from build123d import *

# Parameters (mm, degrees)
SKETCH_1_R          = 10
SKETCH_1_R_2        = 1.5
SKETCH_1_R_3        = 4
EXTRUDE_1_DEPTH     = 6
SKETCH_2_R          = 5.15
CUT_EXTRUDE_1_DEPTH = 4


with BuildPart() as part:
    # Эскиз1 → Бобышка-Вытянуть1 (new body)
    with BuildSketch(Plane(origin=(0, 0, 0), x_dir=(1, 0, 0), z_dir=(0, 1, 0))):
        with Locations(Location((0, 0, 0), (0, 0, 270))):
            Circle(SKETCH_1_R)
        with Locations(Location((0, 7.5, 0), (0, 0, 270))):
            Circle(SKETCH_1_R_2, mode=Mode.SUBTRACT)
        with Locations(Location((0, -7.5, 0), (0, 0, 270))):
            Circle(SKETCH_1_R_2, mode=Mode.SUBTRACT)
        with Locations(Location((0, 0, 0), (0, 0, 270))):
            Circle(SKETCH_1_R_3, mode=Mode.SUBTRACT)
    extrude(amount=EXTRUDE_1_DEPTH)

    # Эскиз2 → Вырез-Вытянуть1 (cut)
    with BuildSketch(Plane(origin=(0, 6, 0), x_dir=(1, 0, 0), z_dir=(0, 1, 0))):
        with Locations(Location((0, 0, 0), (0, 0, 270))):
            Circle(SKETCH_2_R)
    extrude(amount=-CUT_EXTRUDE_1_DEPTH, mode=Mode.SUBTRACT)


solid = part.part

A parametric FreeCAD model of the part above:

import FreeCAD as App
import Part
import Sketcher

V = App.Vector
Q = App.Units.Quantity

doc = App.newDocument("Part")
params = doc.addObject("Spreadsheet::Sheet", "Params")
for row, (alias, value) in enumerate([
    ("sketch1_diameter", "20 mm"),
    ("sketch1_diameter2", "3 mm"),
    ("sketch1_diameter3", "8 mm"),
    ("pad1_length", "6 mm"),
    ("sketch2_diameter", "10.3 mm"),
    ("pocket1_length", "4 mm"),
], start=1):
    params.set(f"A{row}", alias)
    params.set(f"B{row}", "=" + value)
    params.setAlias(f"B{row}", alias)

body = doc.addObject("PartDesign::Body", "Body")

sketch1 = body.newObject("Sketcher::SketchObject", "Sketch")
sketch1.AttachmentSupport = (doc.getObject("XZ_Plane"), [""])
sketch1.MapMode = "FlatFace"
sketch1.addGeometry(Part.Circle(V(0, 0, 0), V(0, 0, 1), 10), False)
sketch1.addGeometry(Part.Circle(V(0, -7.5, 0), V(0, 0, 1), 1.5), False)
sketch1.addGeometry(Part.Circle(V(0, 0, 0), V(0, 0, 1), 4), False)
sketch1.addGeometry(Part.Circle(V(0, 7.5, 0), V(0, 0, 1), 1.5), False)
sketch1.addConstraint(Sketcher.Constraint("Coincident", 0, 3, -1, 1))
sketch1.addConstraint(Sketcher.Constraint("Coincident", 2, 3, -1, 1))
sketch1.addConstraint(Sketcher.Constraint("Equal", 1, 3))
sketch1.addConstraint(Sketcher.Constraint("Symmetric", 1, 3, 3, 3, -1, 1))
sketch1.addConstraint(Sketcher.Constraint("PointOnObject", 1, 3, -2))
sketch1.addConstraint(Sketcher.Constraint("Diameter", 0, Q("20 mm")))
sketch1.addConstraint(Sketcher.Constraint("Diameter", 1, Q("3 mm")))
sketch1.addConstraint(Sketcher.Constraint("Diameter", 2, Q("8 mm")))
sketch1.addConstraint(Sketcher.Constraint("DistanceY", 1, 3, 3, 3, Q("15 mm")))
sketch1.setExpression("Constraints[5]", "Params.sketch1_diameter")
sketch1.setExpression("Constraints[6]", "Params.sketch1_diameter2")
sketch1.setExpression("Constraints[7]", "Params.sketch1_diameter3")
pad1 = body.newObject("PartDesign::Pad", "Pad")
pad1.Profile = sketch1
pad1.setExpression("Length", "Params.pad1_length")
pad1.Reversed = True

sketch2 = body.newObject("Sketcher::SketchObject", "Sketch001")
sketch2.AttachmentSupport = (doc.getObject("XZ_Plane"), [""])
sketch2.MapMode = "FlatFace"
sketch2.AttachmentOffset = App.Placement(V(0, 0, -6), App.Rotation())
sketch2.addGeometry(Part.Circle(V(0, 0, 0), V(0, 0, 1), 5), False)
sketch2.addConstraint(Sketcher.Constraint("Coincident", 0, 3, -1, 1))
sketch2.addConstraint(Sketcher.Constraint("Diameter", 0, Q("10.3 mm")))
sketch2.setExpression("Constraints[1]", "Params.sketch2_diameter")
pocket1 = body.newObject("PartDesign::Pocket", "Pocket")
pocket1.Profile = sketch2
pocket1.setExpression("Length", "Params.pocket1_length")
pocket1.Reversed = True

doc.recompute()
